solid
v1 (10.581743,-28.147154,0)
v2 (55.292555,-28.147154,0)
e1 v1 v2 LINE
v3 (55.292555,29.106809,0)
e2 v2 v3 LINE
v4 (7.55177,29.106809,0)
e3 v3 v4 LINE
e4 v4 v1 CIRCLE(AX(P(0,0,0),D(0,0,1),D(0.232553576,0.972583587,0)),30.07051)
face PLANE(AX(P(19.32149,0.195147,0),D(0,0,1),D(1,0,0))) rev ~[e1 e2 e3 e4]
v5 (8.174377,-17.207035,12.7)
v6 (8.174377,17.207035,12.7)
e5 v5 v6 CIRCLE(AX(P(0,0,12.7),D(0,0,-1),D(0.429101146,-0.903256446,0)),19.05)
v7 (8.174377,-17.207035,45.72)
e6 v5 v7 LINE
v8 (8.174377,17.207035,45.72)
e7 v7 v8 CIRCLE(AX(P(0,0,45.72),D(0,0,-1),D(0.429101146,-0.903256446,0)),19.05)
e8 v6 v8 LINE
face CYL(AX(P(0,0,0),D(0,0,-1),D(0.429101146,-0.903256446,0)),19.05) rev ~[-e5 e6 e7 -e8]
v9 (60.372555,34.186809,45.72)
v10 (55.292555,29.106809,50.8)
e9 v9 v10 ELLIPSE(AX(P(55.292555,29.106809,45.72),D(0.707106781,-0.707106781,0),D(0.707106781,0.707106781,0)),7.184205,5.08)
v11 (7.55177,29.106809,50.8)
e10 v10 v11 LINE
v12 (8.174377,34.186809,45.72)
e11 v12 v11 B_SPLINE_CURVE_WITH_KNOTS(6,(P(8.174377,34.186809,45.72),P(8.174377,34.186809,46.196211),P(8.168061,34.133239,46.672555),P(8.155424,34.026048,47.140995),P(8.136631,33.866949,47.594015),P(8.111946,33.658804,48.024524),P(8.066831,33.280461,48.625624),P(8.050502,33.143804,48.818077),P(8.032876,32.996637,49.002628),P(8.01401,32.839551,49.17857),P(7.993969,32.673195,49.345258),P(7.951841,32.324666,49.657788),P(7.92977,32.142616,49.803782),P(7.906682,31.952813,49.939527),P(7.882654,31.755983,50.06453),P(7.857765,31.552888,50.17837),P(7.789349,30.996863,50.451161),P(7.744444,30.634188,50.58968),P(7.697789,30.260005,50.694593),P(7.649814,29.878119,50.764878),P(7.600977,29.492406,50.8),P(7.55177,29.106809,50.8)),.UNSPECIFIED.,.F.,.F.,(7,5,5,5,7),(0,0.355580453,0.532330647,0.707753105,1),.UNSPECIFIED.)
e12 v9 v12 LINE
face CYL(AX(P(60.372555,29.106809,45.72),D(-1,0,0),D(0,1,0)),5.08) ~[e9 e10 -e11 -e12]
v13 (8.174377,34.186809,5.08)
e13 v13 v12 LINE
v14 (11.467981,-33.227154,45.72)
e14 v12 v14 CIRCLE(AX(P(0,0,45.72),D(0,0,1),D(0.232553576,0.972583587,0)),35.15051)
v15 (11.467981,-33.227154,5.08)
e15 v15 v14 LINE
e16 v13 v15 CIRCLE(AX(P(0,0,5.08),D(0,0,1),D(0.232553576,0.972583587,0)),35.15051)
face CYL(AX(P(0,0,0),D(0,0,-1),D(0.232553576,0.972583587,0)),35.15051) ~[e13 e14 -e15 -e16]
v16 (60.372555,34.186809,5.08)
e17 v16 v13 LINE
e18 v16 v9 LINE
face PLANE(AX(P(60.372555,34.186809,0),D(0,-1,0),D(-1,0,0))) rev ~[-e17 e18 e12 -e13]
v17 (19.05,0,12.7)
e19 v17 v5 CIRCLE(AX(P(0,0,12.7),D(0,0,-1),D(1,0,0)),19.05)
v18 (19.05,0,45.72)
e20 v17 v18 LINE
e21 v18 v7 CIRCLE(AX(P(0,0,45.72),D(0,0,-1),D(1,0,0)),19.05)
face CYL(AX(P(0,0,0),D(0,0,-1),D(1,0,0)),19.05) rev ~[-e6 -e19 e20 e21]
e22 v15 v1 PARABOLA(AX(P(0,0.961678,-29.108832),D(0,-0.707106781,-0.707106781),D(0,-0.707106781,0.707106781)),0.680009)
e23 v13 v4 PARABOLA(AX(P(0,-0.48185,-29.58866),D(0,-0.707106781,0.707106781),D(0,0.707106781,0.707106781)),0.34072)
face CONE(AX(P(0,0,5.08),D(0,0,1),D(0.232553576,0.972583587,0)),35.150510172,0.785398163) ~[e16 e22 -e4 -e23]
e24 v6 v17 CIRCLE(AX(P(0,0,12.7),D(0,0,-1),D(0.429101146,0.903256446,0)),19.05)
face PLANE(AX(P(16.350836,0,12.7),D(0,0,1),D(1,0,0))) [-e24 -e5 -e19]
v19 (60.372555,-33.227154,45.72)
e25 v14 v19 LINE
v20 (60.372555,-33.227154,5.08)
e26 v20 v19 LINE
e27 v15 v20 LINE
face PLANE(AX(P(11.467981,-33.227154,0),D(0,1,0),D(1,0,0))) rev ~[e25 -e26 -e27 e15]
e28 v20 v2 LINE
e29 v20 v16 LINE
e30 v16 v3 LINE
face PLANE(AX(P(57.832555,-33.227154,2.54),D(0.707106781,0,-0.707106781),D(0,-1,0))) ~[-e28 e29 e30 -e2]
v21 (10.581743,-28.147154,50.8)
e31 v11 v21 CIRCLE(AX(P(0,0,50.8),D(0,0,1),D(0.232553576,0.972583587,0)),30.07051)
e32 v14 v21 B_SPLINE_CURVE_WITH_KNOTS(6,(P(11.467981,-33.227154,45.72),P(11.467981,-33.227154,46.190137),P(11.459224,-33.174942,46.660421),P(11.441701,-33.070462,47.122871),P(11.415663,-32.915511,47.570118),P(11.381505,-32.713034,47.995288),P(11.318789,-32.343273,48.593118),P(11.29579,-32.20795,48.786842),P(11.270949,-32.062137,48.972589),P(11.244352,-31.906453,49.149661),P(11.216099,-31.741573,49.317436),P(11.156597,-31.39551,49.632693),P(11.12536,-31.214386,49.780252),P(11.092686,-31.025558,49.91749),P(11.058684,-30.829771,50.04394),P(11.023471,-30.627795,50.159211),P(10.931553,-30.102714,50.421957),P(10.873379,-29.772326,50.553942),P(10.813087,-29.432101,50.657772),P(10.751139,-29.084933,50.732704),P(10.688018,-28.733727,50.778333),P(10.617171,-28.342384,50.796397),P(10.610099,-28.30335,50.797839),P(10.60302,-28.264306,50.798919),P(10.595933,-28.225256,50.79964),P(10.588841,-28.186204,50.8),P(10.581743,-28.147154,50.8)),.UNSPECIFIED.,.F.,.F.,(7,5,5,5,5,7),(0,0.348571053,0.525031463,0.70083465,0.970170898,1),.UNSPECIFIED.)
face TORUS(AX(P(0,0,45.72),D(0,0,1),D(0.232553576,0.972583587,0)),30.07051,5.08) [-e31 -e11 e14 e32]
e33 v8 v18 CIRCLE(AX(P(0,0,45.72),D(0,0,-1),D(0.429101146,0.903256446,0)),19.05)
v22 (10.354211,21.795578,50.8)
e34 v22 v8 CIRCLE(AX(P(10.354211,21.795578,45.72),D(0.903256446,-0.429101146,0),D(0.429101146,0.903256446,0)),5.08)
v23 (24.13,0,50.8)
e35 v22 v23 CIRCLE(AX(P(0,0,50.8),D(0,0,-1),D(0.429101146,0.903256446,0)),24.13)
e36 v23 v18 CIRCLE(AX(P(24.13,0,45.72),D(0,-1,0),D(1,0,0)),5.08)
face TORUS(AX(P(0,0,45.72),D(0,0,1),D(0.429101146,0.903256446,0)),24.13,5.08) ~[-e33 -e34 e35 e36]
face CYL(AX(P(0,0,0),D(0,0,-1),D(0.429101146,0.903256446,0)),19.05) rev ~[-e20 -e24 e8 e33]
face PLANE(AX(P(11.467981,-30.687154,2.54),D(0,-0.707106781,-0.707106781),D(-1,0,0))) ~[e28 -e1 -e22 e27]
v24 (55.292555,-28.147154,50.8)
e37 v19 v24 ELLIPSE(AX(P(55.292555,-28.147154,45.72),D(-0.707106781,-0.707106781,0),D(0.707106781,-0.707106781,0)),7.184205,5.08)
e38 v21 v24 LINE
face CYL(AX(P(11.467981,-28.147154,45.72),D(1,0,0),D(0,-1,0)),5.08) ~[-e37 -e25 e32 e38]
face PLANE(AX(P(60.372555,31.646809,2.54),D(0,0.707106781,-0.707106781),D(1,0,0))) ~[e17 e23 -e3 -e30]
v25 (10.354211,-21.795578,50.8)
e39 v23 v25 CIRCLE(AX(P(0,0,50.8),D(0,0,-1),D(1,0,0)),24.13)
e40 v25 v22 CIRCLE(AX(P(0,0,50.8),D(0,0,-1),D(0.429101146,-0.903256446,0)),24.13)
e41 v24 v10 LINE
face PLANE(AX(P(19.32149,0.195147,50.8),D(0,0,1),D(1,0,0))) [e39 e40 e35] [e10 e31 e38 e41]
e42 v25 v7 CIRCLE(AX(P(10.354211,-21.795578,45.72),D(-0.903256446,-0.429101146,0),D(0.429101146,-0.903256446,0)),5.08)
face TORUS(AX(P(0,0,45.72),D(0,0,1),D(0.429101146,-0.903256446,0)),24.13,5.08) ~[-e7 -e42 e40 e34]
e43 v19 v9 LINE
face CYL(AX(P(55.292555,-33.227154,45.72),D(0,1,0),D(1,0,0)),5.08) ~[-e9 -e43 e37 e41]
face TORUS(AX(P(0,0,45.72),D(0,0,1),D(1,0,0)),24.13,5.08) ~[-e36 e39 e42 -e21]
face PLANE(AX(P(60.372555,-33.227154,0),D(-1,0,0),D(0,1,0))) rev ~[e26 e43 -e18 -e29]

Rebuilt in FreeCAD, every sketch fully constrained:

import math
import FreeCAD as App
import Part
import Sketcher
Q = App.Units.Quantity


def edges_at(feature, points):
    """Names of the edges that pass closest to the given points."""
    edges = feature.Shape.Edges
    near = lambda p: min(range(len(edges)), key=lambda i: edges[i].distToShape(Part.Vertex(*p))[0])
    return sorted({f"Edge{near(p) + 1}" for p in points})

doc = App.newDocument("Part")
body = doc.addObject("PartDesign::Body", "Body")

# Sketch on XY plane
sketch1 = doc.addObject("Sketcher::SketchObject", "Sketch")
body.addObject(sketch1)
sketch1.AttachmentSupport = (doc.XY_Plane, [""])
sketch1.MapMode = "FlatFace"
sketch1.addGeometry([
    Part.LineSegment(App.Vector(11, -33, 0), App.Vector(60, -33, 0)),  # 0
    Part.LineSegment(App.Vector(60, -33, 0), App.Vector(60, 34, 0)),  # 1
    Part.LineSegment(App.Vector(60, 34, 0), App.Vector(8, 34, 0)),  # 2
    Part.ArcOfCircle(Part.Circle(App.Vector(0, 0, 0), App.Vector(0, 0, 1), 35), math.radians(77), math.radians(289)),  # 3
    Part.ArcOfCircle(Part.Circle(App.Vector(0, 0, 0), App.Vector(0, 0, 1), 19), math.radians(0), math.radians(65)),  # 4
    Part.ArcOfCircle(Part.Circle(App.Vector(0, 0, 0), App.Vector(0, 0, 1), 19), math.radians(-65), math.radians(0)),  # 5
    Part.ArcOfCircle(Part.Circle(App.Vector(0, 0, 0), App.Vector(0, 0, 1), 19), math.radians(65), math.radians(295)),  # 6
], False)
sketch1.addConstraint([
    Sketcher.Constraint("Coincident", 0, 2, 1, 1),
    Sketcher.Constraint("Coincident", 1, 2, 2, 1),
    Sketcher.Constraint("Coincident", 2, 2, 3, 1),
    Sketcher.Constraint("Coincident", 3, 2, 0, 1),
    Sketcher.Constraint("Tangent", 4, 1, 5, 2),
    Sketcher.Constraint("Tangent", 5, 1, 6, 2),
    Sketcher.Constraint("Tangent", 6, 1, 4, 2),
    Sketcher.Constraint("Horizontal", 0),
    Sketcher.Constraint("Vertical", 1),
    Sketcher.Constraint("Horizontal", 2),
    Sketcher.Constraint("Coincident", 3, 3, -1, 1),
    Sketcher.Constraint("Coincident", 4, 3, -1, 1),
    Sketcher.Constraint("PointOnObject", 4, 1, -1),
    Sketcher.Constraint("Vertical", 2, 2, 5, 1),
    Sketcher.Constraint("Vertical", 5, 1, 6, 1),
    Sketcher.Constraint("Radius", 4, Q("0.75 in")),
    Sketcher.Constraint("Radius", 3, 35.15051),
    Sketcher.Constraint("DistanceX", 2, 2, 2, 1, 52.198178),
    Sketcher.Constraint("DistanceX", 0, 1, 0, 2, 48.904574),
    Sketcher.Constraint("DistanceY", 1, 1, 1, 2, 67.413964),
])
pad1 = doc.addObject("PartDesign::Pad", "Pad")
body.addObject(pad1)
pad1.Profile = sketch1
pad1.Length = Q("2 in")
doc.recompute()

chamfer = doc.addObject("PartDesign::Chamfer", "Chamfer")
body.addObject(chamfer)
chamfer.Base = (pad1, edges_at(pad1, [
    (-35.109, -1.715, 0),
    (34.273, 34.187, 0),
    (60.373, 0.48, 0),
    (35.92, -33.227, 0),
]))
chamfer.Size = Q("0.2 in")

# Sketch on XY plane
sketch2 = doc.addObject("Sketcher::SketchObject", "Sketch001")
body.addObject(sketch2)
sketch2.AttachmentSupport = (doc.XY_Plane, [""])
sketch2.MapMode = "FlatFace"
sketch2.addGeometry([
    Part.LineSegment(App.Vector(10, -26.1, 0), App.Vector(51.6, -26.1, 0)),  # 0
    Part.LineSegment(App.Vector(51.6, -26.1, 0), App.Vector(51.6, 26.9, 0)),  # 1
    Part.LineSegment(App.Vector(51.6, 26.9, 0), App.Vector(10, 26.9, 0)),  # 2
    Part.LineSegment(App.Vector(10, 26.9, 0), App.Vector(10, 26.1, 0)),  # 3
    Part.ArcOfCircle(Part.Circle(App.Vector(0, 0, 0), App.Vector(0, 0, 1), 27.9), math.radians(69), math.radians(291)),  # 4
], False)
sketch2.addConstraint([
    Sketcher.Constraint("Coincident", 0, 2, 1, 1),
    Sketcher.Constraint("Coincident", 1, 2, 2, 1),
    Sketcher.Constraint("Coincident", 2, 2, 3, 1),
    Sketcher.Constraint("Coincident", 3, 2, 4, 1),
    Sketcher.Constraint("Coincident", 4, 2, 0, 1),
    Sketcher.Constraint("Horizontal", 0),
    Sketcher.Constraint("Vertical", 1),
    Sketcher.Constraint("Horizontal", 2),
    Sketcher.Constraint("Vertical", 3),
    Sketcher.Constraint("Coincident", 4, 3, -1, 1),
    Sketcher.Constraint("Vertical", 3, 2, 4, 2),
    Sketcher.Constraint("DistanceX", 0, 1, 0, 2, Q("1.6400001 in")),
    Sketcher.Constraint("Radius", 4, 27.921271),
    Sketcher.Constraint("DistanceY", 1, 1, 1, 2, 52.941344),
    Sketcher.Constraint("DistanceY", 3, 2, 3, 1, 0.771665),
])
pad2 = doc.addObject("PartDesign::Pad", "Pad001")
body.addObject(pad2)
pad2.Profile = sketch2
pad2.Length = Q("0.5 in")
doc.recompute()

fillet = doc.addObject("PartDesign::Fillet", "Fillet")
body.addObject(fillet)
fillet.Base = (pad2, edges_at(pad2, [
    (-35.109, -1.715, 50.8),
    (35.92, -33.227, 50.8),
    (60.373, 0.48, 50.8),
    (34.273, 34.187, 50.8),
]))
fillet.Radius = Q("0.2 in")
doc.recompute()

fillet2 = doc.addObject("PartDesign::Fillet", "Fillet001")
body.addObject(fillet2)
fillet2.Base = (fillet, edges_at(fillet, [(-19.05, 0, 50.8)]))
fillet2.Radius = Q("0.2 in")

doc.recompute()
